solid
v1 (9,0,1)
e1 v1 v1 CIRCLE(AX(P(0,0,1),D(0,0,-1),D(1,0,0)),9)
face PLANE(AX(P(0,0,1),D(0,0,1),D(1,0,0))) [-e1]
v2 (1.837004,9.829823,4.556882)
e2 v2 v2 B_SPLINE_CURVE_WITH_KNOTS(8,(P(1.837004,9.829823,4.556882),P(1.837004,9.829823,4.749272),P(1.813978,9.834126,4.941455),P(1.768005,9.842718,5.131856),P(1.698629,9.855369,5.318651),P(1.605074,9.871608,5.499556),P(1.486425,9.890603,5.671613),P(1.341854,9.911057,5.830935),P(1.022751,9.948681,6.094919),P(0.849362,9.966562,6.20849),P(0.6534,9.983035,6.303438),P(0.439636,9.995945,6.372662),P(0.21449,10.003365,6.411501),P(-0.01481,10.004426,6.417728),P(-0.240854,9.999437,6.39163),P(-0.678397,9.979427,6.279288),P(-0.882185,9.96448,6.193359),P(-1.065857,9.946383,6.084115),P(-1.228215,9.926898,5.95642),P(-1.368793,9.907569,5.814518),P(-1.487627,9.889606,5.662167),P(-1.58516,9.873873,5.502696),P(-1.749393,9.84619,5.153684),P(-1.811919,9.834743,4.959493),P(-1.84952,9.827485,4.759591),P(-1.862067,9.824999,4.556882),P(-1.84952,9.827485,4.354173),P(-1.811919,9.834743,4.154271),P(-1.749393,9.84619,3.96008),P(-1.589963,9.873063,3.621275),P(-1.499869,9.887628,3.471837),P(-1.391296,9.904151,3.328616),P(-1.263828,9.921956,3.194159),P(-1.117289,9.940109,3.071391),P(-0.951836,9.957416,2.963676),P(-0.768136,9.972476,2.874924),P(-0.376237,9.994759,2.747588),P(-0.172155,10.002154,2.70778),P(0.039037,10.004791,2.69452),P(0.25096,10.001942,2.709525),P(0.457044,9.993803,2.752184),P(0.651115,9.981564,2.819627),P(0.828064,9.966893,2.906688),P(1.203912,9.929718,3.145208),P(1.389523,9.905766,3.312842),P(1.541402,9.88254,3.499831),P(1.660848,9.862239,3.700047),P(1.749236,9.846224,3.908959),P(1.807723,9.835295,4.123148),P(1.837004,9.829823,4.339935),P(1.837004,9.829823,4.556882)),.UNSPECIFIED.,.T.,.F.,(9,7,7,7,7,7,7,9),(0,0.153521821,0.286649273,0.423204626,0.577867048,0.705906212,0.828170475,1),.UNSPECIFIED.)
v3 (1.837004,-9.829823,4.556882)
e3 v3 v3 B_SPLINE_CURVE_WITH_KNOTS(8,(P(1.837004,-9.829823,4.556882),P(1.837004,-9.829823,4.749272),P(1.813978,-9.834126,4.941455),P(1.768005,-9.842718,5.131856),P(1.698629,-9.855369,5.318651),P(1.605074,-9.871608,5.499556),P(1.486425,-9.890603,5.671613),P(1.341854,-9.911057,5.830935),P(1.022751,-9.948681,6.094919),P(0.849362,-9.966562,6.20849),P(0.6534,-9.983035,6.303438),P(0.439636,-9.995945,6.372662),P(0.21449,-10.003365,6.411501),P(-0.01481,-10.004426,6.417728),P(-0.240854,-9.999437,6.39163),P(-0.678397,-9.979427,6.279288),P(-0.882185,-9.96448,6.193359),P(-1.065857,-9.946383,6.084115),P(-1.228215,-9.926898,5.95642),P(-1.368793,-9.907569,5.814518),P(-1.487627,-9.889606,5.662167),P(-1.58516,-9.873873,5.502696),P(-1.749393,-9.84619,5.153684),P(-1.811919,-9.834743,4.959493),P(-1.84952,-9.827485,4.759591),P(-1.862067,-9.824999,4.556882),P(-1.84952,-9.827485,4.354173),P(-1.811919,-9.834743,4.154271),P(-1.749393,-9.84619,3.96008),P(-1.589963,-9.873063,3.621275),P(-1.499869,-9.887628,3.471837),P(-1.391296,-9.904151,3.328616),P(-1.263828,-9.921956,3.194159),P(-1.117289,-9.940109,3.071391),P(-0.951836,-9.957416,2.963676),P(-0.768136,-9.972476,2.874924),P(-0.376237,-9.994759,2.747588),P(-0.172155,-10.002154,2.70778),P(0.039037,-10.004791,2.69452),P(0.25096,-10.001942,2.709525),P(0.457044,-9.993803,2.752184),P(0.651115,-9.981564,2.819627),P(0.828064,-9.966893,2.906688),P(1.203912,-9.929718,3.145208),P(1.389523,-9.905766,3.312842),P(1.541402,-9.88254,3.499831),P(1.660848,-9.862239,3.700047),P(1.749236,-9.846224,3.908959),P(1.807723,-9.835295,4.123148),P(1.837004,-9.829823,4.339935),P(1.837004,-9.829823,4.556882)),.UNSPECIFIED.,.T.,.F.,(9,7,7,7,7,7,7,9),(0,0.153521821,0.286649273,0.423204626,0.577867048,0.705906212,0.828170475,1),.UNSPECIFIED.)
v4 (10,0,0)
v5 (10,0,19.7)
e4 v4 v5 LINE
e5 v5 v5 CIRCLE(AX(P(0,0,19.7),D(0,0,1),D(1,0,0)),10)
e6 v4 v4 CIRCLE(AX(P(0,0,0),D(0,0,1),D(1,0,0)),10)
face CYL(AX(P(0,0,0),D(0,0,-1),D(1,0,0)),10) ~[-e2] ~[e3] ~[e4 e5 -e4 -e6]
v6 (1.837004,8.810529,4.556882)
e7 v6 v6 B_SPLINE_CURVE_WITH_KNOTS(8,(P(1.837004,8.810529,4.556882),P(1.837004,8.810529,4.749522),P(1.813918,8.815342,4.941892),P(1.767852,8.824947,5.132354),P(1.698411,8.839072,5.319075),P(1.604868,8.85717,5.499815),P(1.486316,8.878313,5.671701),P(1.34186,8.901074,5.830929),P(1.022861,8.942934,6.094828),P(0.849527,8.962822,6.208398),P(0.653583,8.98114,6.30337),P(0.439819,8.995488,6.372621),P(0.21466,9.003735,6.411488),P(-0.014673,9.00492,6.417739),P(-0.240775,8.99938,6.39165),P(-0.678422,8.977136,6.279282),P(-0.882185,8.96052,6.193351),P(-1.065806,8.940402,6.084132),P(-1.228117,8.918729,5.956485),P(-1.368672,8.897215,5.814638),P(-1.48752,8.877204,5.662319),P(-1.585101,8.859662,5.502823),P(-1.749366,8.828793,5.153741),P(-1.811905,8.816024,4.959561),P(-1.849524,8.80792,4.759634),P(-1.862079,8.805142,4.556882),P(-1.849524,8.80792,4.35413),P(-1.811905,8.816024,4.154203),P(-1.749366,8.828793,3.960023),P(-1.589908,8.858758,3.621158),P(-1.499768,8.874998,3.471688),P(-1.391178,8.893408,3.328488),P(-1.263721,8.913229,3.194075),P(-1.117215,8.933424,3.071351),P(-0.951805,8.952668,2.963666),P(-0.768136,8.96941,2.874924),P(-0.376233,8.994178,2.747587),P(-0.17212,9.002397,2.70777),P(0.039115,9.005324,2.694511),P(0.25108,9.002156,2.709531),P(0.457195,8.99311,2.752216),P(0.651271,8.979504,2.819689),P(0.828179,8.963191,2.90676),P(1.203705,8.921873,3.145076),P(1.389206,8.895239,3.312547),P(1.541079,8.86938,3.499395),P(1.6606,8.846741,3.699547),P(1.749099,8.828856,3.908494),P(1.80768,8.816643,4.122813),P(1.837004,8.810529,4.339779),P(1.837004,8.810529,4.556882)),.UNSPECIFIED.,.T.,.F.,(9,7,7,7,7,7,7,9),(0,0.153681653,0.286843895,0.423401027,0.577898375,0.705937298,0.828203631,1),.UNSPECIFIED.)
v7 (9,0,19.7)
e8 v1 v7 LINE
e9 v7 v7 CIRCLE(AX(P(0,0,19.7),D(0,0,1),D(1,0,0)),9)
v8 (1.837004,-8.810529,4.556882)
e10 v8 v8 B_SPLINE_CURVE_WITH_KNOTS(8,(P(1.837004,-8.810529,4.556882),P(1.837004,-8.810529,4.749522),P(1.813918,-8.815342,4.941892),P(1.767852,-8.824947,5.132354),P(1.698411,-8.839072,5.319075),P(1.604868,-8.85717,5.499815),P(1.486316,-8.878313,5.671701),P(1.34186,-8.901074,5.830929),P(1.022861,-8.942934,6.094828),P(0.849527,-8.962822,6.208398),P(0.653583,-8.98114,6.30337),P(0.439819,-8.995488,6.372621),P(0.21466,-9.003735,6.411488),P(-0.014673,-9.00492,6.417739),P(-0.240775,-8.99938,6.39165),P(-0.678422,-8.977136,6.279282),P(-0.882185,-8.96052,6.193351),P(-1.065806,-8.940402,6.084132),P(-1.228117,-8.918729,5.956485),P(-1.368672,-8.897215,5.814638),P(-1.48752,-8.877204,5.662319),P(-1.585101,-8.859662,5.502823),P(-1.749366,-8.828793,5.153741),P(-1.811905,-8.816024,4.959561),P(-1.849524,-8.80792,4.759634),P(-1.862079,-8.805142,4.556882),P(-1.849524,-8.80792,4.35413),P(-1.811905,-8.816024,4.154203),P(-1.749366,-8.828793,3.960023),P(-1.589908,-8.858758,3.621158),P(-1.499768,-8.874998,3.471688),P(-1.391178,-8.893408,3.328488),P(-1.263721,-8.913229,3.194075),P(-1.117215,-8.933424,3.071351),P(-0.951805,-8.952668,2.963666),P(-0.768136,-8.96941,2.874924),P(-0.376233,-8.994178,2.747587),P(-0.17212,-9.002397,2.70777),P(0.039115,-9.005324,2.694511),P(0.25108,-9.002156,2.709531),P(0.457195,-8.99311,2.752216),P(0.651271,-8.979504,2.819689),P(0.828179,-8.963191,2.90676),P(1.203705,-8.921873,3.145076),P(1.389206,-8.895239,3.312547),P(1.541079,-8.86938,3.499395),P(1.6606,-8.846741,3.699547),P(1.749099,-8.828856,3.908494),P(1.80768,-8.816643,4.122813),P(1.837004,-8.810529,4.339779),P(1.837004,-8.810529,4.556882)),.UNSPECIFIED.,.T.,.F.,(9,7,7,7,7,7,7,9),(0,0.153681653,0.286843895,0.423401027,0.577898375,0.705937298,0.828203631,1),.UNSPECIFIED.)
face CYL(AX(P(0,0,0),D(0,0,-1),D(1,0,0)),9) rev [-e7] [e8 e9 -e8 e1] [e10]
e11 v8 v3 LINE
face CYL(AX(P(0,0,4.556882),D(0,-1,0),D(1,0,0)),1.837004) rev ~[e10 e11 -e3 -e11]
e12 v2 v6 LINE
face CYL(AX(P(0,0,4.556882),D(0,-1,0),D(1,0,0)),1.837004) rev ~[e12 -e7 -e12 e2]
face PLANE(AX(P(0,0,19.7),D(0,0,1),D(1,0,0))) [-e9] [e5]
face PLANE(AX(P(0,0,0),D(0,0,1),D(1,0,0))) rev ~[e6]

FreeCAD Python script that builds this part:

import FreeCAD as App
import Part
import Sketcher


def faces_at(feature, points):
    """Names of the faces that lie closest to the given points."""
    faces = feature.Shape.Faces
    near = lambda p: min(range(len(faces)), key=lambda i: faces[i].distToShape(Part.Vertex(*p))[0])
    return sorted({f"Face{near(p) + 1}" for p in points})

doc = App.newDocument("Part")
body = doc.addObject("PartDesign::Body", "Body")

# Sketch on XY plane
sketch1 = doc.addObject("Sketcher::SketchObject", "Sketch")
body.addObject(sketch1)
sketch1.AttachmentSupport = (doc.XY_Plane, [""])
sketch1.MapMode = "FlatFace"
sketch1.addGeometry(Part.Circle(App.Vector(0, 0, 0), App.Vector(0, 0, 1), 10), False)
sketch1.addConstraint(Sketcher.Constraint("Coincident", 0, 3, -1, 1))
sketch1.addConstraint(Sketcher.Constraint("Diameter", 0, 20.0))
pad1 = doc.addObject("PartDesign::Pad", "Pad")
body.addObject(pad1)
pad1.Profile = sketch1
pad1.Length = 19.7
doc.recompute()

thickness = doc.addObject("PartDesign::Thickness", "Thickness")
body.addObject(thickness)
thickness.Base = (pad1, faces_at(pad1, [(0, 0, 19.7)]))
thickness.Value = 1
thickness.Reversed = True
thickness.Join = "Arc"

# Sketch on XZ plane
sketch2 = doc.addObject("Sketcher::SketchObject", "Sketch001")
body.addObject(sketch2)
sketch2.AttachmentSupport = (doc.XZ_Plane, [""])
sketch2.MapMode = "FlatFace"
sketch2.addGeometry(Part.Circle(App.Vector(0, 4.556882, 0), App.Vector(0, 0, 1), 1.837004), False)
sketch2.addConstraint(Sketcher.Constraint("PointOnObject", 0, 3, -2))
sketch2.addConstraint(Sketcher.Constraint("Diameter", 0, 3.674008))
sketch2.addConstraint(Sketcher.Constraint("DistanceY", -1, 1, 0, 3, 4.556882))
pocket1 = doc.addObject("PartDesign::Pocket", "Pocket")
body.addObject(pocket1)
pocket1.Profile = sketch2
pocket1.Length = 23.2
pocket1.Midplane = True

doc.recompute()
